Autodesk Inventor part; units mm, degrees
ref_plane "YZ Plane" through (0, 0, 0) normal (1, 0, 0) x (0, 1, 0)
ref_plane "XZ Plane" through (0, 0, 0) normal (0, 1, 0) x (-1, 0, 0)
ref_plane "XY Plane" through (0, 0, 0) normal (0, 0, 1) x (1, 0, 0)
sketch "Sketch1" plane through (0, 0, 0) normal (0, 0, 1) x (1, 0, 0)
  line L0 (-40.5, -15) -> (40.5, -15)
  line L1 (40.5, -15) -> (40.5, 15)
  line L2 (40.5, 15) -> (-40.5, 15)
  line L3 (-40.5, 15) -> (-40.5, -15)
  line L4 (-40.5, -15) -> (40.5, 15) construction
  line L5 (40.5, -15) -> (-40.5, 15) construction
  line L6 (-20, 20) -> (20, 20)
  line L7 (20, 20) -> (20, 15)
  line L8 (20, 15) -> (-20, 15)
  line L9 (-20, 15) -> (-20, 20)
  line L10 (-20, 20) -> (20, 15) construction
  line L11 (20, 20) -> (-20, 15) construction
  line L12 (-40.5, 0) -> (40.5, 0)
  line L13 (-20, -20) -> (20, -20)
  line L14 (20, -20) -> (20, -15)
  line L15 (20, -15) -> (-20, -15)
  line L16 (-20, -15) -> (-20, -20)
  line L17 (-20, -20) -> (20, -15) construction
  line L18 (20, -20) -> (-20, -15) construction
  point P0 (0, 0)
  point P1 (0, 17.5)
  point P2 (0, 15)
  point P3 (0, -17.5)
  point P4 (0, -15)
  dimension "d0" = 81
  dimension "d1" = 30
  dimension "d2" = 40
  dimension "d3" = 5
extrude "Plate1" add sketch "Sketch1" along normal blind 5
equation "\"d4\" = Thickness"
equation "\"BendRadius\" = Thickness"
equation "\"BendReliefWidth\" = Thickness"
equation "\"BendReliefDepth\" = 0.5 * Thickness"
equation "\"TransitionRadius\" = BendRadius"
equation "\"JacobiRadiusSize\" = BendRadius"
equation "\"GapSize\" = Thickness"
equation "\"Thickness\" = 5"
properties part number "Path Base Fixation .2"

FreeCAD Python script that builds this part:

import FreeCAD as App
import Part
import Sketcher
from FreeCAD import Vector
Q = App.Units.Quantity


def add_polygon(sketch, points):
    """Adds a closed chain of lines whose ends are joined by coincident constraints."""
    first, n = sketch.GeometryCount, len(points)
    for a, b in zip(points, points[1:] + points[:1]):
        sketch.addGeometry(Part.LineSegment(App.Vector(*a, 0), App.Vector(*b, 0)), False)
    for i in range(n):
        sketch.addConstraint(Sketcher.Constraint("Coincident", first + i, 2, first + (i + 1) % n, 1))

doc = App.newDocument("Part")
body = doc.addObject("PartDesign::Body", "Body")

# Sketch on XY plane
sketch1 = body.newObject("Sketcher::SketchObject", "Sketch")
sketch1.AttachmentSupport = (doc.getObject("XY_Plane"), [""])
sketch1.MapMode = "FlatFace"
add_polygon(sketch1, [(-40, -15), (-20, -15), (-20, -20), (20, -20), (20, -15), (40, -15), (40, 15), (20, 15), (20, 20), (-20, 20), (-20, 15), (-40, 15)])  # lines 0-11
sketch1.addConstraint([
    Sketcher.Constraint("Horizontal", 0),
    Sketcher.Constraint("Vertical", 1),
    Sketcher.Constraint("Horizontal", 2),
    Sketcher.Constraint("Vertical", 3),
    Sketcher.Constraint("Horizontal", 4),
    Sketcher.Constraint("Vertical", 5),
    Sketcher.Constraint("Horizontal", 6),
    Sketcher.Constraint("Vertical", 7),
    Sketcher.Constraint("Horizontal", 8),
    Sketcher.Constraint("Vertical", 9),
    Sketcher.Constraint("Horizontal", 10),
    Sketcher.Constraint("Vertical", 11),
    Sketcher.Constraint("Symmetric", 0, 2, 6, 2, -1, 1),
    Sketcher.Constraint("Symmetric", 2, 2, 8, 2, -1, 1),
    Sketcher.Constraint("Symmetric", 4, 2, 10, 2, -1, 1),
    Sketcher.Constraint("Symmetric", 0, 2, 3, 2, -2),
    Sketcher.Constraint("DistanceX", 2, 1, 2, 2, Q("40 mm")),
    Sketcher.Constraint("DistanceY", 1, 2, 1, 1, Q("5 mm")),
    Sketcher.Constraint("DistanceY", 5, 1, 5, 2, Q("30 mm")),
    Sketcher.Constraint("DistanceX", 0, 1, 0, 2, Q("20.5 mm")),
])
pad1 = body.newObject("PartDesign::Pad", "Pad")
pad1.Profile = sketch1
pad1.Length = 5

doc.recompute()
